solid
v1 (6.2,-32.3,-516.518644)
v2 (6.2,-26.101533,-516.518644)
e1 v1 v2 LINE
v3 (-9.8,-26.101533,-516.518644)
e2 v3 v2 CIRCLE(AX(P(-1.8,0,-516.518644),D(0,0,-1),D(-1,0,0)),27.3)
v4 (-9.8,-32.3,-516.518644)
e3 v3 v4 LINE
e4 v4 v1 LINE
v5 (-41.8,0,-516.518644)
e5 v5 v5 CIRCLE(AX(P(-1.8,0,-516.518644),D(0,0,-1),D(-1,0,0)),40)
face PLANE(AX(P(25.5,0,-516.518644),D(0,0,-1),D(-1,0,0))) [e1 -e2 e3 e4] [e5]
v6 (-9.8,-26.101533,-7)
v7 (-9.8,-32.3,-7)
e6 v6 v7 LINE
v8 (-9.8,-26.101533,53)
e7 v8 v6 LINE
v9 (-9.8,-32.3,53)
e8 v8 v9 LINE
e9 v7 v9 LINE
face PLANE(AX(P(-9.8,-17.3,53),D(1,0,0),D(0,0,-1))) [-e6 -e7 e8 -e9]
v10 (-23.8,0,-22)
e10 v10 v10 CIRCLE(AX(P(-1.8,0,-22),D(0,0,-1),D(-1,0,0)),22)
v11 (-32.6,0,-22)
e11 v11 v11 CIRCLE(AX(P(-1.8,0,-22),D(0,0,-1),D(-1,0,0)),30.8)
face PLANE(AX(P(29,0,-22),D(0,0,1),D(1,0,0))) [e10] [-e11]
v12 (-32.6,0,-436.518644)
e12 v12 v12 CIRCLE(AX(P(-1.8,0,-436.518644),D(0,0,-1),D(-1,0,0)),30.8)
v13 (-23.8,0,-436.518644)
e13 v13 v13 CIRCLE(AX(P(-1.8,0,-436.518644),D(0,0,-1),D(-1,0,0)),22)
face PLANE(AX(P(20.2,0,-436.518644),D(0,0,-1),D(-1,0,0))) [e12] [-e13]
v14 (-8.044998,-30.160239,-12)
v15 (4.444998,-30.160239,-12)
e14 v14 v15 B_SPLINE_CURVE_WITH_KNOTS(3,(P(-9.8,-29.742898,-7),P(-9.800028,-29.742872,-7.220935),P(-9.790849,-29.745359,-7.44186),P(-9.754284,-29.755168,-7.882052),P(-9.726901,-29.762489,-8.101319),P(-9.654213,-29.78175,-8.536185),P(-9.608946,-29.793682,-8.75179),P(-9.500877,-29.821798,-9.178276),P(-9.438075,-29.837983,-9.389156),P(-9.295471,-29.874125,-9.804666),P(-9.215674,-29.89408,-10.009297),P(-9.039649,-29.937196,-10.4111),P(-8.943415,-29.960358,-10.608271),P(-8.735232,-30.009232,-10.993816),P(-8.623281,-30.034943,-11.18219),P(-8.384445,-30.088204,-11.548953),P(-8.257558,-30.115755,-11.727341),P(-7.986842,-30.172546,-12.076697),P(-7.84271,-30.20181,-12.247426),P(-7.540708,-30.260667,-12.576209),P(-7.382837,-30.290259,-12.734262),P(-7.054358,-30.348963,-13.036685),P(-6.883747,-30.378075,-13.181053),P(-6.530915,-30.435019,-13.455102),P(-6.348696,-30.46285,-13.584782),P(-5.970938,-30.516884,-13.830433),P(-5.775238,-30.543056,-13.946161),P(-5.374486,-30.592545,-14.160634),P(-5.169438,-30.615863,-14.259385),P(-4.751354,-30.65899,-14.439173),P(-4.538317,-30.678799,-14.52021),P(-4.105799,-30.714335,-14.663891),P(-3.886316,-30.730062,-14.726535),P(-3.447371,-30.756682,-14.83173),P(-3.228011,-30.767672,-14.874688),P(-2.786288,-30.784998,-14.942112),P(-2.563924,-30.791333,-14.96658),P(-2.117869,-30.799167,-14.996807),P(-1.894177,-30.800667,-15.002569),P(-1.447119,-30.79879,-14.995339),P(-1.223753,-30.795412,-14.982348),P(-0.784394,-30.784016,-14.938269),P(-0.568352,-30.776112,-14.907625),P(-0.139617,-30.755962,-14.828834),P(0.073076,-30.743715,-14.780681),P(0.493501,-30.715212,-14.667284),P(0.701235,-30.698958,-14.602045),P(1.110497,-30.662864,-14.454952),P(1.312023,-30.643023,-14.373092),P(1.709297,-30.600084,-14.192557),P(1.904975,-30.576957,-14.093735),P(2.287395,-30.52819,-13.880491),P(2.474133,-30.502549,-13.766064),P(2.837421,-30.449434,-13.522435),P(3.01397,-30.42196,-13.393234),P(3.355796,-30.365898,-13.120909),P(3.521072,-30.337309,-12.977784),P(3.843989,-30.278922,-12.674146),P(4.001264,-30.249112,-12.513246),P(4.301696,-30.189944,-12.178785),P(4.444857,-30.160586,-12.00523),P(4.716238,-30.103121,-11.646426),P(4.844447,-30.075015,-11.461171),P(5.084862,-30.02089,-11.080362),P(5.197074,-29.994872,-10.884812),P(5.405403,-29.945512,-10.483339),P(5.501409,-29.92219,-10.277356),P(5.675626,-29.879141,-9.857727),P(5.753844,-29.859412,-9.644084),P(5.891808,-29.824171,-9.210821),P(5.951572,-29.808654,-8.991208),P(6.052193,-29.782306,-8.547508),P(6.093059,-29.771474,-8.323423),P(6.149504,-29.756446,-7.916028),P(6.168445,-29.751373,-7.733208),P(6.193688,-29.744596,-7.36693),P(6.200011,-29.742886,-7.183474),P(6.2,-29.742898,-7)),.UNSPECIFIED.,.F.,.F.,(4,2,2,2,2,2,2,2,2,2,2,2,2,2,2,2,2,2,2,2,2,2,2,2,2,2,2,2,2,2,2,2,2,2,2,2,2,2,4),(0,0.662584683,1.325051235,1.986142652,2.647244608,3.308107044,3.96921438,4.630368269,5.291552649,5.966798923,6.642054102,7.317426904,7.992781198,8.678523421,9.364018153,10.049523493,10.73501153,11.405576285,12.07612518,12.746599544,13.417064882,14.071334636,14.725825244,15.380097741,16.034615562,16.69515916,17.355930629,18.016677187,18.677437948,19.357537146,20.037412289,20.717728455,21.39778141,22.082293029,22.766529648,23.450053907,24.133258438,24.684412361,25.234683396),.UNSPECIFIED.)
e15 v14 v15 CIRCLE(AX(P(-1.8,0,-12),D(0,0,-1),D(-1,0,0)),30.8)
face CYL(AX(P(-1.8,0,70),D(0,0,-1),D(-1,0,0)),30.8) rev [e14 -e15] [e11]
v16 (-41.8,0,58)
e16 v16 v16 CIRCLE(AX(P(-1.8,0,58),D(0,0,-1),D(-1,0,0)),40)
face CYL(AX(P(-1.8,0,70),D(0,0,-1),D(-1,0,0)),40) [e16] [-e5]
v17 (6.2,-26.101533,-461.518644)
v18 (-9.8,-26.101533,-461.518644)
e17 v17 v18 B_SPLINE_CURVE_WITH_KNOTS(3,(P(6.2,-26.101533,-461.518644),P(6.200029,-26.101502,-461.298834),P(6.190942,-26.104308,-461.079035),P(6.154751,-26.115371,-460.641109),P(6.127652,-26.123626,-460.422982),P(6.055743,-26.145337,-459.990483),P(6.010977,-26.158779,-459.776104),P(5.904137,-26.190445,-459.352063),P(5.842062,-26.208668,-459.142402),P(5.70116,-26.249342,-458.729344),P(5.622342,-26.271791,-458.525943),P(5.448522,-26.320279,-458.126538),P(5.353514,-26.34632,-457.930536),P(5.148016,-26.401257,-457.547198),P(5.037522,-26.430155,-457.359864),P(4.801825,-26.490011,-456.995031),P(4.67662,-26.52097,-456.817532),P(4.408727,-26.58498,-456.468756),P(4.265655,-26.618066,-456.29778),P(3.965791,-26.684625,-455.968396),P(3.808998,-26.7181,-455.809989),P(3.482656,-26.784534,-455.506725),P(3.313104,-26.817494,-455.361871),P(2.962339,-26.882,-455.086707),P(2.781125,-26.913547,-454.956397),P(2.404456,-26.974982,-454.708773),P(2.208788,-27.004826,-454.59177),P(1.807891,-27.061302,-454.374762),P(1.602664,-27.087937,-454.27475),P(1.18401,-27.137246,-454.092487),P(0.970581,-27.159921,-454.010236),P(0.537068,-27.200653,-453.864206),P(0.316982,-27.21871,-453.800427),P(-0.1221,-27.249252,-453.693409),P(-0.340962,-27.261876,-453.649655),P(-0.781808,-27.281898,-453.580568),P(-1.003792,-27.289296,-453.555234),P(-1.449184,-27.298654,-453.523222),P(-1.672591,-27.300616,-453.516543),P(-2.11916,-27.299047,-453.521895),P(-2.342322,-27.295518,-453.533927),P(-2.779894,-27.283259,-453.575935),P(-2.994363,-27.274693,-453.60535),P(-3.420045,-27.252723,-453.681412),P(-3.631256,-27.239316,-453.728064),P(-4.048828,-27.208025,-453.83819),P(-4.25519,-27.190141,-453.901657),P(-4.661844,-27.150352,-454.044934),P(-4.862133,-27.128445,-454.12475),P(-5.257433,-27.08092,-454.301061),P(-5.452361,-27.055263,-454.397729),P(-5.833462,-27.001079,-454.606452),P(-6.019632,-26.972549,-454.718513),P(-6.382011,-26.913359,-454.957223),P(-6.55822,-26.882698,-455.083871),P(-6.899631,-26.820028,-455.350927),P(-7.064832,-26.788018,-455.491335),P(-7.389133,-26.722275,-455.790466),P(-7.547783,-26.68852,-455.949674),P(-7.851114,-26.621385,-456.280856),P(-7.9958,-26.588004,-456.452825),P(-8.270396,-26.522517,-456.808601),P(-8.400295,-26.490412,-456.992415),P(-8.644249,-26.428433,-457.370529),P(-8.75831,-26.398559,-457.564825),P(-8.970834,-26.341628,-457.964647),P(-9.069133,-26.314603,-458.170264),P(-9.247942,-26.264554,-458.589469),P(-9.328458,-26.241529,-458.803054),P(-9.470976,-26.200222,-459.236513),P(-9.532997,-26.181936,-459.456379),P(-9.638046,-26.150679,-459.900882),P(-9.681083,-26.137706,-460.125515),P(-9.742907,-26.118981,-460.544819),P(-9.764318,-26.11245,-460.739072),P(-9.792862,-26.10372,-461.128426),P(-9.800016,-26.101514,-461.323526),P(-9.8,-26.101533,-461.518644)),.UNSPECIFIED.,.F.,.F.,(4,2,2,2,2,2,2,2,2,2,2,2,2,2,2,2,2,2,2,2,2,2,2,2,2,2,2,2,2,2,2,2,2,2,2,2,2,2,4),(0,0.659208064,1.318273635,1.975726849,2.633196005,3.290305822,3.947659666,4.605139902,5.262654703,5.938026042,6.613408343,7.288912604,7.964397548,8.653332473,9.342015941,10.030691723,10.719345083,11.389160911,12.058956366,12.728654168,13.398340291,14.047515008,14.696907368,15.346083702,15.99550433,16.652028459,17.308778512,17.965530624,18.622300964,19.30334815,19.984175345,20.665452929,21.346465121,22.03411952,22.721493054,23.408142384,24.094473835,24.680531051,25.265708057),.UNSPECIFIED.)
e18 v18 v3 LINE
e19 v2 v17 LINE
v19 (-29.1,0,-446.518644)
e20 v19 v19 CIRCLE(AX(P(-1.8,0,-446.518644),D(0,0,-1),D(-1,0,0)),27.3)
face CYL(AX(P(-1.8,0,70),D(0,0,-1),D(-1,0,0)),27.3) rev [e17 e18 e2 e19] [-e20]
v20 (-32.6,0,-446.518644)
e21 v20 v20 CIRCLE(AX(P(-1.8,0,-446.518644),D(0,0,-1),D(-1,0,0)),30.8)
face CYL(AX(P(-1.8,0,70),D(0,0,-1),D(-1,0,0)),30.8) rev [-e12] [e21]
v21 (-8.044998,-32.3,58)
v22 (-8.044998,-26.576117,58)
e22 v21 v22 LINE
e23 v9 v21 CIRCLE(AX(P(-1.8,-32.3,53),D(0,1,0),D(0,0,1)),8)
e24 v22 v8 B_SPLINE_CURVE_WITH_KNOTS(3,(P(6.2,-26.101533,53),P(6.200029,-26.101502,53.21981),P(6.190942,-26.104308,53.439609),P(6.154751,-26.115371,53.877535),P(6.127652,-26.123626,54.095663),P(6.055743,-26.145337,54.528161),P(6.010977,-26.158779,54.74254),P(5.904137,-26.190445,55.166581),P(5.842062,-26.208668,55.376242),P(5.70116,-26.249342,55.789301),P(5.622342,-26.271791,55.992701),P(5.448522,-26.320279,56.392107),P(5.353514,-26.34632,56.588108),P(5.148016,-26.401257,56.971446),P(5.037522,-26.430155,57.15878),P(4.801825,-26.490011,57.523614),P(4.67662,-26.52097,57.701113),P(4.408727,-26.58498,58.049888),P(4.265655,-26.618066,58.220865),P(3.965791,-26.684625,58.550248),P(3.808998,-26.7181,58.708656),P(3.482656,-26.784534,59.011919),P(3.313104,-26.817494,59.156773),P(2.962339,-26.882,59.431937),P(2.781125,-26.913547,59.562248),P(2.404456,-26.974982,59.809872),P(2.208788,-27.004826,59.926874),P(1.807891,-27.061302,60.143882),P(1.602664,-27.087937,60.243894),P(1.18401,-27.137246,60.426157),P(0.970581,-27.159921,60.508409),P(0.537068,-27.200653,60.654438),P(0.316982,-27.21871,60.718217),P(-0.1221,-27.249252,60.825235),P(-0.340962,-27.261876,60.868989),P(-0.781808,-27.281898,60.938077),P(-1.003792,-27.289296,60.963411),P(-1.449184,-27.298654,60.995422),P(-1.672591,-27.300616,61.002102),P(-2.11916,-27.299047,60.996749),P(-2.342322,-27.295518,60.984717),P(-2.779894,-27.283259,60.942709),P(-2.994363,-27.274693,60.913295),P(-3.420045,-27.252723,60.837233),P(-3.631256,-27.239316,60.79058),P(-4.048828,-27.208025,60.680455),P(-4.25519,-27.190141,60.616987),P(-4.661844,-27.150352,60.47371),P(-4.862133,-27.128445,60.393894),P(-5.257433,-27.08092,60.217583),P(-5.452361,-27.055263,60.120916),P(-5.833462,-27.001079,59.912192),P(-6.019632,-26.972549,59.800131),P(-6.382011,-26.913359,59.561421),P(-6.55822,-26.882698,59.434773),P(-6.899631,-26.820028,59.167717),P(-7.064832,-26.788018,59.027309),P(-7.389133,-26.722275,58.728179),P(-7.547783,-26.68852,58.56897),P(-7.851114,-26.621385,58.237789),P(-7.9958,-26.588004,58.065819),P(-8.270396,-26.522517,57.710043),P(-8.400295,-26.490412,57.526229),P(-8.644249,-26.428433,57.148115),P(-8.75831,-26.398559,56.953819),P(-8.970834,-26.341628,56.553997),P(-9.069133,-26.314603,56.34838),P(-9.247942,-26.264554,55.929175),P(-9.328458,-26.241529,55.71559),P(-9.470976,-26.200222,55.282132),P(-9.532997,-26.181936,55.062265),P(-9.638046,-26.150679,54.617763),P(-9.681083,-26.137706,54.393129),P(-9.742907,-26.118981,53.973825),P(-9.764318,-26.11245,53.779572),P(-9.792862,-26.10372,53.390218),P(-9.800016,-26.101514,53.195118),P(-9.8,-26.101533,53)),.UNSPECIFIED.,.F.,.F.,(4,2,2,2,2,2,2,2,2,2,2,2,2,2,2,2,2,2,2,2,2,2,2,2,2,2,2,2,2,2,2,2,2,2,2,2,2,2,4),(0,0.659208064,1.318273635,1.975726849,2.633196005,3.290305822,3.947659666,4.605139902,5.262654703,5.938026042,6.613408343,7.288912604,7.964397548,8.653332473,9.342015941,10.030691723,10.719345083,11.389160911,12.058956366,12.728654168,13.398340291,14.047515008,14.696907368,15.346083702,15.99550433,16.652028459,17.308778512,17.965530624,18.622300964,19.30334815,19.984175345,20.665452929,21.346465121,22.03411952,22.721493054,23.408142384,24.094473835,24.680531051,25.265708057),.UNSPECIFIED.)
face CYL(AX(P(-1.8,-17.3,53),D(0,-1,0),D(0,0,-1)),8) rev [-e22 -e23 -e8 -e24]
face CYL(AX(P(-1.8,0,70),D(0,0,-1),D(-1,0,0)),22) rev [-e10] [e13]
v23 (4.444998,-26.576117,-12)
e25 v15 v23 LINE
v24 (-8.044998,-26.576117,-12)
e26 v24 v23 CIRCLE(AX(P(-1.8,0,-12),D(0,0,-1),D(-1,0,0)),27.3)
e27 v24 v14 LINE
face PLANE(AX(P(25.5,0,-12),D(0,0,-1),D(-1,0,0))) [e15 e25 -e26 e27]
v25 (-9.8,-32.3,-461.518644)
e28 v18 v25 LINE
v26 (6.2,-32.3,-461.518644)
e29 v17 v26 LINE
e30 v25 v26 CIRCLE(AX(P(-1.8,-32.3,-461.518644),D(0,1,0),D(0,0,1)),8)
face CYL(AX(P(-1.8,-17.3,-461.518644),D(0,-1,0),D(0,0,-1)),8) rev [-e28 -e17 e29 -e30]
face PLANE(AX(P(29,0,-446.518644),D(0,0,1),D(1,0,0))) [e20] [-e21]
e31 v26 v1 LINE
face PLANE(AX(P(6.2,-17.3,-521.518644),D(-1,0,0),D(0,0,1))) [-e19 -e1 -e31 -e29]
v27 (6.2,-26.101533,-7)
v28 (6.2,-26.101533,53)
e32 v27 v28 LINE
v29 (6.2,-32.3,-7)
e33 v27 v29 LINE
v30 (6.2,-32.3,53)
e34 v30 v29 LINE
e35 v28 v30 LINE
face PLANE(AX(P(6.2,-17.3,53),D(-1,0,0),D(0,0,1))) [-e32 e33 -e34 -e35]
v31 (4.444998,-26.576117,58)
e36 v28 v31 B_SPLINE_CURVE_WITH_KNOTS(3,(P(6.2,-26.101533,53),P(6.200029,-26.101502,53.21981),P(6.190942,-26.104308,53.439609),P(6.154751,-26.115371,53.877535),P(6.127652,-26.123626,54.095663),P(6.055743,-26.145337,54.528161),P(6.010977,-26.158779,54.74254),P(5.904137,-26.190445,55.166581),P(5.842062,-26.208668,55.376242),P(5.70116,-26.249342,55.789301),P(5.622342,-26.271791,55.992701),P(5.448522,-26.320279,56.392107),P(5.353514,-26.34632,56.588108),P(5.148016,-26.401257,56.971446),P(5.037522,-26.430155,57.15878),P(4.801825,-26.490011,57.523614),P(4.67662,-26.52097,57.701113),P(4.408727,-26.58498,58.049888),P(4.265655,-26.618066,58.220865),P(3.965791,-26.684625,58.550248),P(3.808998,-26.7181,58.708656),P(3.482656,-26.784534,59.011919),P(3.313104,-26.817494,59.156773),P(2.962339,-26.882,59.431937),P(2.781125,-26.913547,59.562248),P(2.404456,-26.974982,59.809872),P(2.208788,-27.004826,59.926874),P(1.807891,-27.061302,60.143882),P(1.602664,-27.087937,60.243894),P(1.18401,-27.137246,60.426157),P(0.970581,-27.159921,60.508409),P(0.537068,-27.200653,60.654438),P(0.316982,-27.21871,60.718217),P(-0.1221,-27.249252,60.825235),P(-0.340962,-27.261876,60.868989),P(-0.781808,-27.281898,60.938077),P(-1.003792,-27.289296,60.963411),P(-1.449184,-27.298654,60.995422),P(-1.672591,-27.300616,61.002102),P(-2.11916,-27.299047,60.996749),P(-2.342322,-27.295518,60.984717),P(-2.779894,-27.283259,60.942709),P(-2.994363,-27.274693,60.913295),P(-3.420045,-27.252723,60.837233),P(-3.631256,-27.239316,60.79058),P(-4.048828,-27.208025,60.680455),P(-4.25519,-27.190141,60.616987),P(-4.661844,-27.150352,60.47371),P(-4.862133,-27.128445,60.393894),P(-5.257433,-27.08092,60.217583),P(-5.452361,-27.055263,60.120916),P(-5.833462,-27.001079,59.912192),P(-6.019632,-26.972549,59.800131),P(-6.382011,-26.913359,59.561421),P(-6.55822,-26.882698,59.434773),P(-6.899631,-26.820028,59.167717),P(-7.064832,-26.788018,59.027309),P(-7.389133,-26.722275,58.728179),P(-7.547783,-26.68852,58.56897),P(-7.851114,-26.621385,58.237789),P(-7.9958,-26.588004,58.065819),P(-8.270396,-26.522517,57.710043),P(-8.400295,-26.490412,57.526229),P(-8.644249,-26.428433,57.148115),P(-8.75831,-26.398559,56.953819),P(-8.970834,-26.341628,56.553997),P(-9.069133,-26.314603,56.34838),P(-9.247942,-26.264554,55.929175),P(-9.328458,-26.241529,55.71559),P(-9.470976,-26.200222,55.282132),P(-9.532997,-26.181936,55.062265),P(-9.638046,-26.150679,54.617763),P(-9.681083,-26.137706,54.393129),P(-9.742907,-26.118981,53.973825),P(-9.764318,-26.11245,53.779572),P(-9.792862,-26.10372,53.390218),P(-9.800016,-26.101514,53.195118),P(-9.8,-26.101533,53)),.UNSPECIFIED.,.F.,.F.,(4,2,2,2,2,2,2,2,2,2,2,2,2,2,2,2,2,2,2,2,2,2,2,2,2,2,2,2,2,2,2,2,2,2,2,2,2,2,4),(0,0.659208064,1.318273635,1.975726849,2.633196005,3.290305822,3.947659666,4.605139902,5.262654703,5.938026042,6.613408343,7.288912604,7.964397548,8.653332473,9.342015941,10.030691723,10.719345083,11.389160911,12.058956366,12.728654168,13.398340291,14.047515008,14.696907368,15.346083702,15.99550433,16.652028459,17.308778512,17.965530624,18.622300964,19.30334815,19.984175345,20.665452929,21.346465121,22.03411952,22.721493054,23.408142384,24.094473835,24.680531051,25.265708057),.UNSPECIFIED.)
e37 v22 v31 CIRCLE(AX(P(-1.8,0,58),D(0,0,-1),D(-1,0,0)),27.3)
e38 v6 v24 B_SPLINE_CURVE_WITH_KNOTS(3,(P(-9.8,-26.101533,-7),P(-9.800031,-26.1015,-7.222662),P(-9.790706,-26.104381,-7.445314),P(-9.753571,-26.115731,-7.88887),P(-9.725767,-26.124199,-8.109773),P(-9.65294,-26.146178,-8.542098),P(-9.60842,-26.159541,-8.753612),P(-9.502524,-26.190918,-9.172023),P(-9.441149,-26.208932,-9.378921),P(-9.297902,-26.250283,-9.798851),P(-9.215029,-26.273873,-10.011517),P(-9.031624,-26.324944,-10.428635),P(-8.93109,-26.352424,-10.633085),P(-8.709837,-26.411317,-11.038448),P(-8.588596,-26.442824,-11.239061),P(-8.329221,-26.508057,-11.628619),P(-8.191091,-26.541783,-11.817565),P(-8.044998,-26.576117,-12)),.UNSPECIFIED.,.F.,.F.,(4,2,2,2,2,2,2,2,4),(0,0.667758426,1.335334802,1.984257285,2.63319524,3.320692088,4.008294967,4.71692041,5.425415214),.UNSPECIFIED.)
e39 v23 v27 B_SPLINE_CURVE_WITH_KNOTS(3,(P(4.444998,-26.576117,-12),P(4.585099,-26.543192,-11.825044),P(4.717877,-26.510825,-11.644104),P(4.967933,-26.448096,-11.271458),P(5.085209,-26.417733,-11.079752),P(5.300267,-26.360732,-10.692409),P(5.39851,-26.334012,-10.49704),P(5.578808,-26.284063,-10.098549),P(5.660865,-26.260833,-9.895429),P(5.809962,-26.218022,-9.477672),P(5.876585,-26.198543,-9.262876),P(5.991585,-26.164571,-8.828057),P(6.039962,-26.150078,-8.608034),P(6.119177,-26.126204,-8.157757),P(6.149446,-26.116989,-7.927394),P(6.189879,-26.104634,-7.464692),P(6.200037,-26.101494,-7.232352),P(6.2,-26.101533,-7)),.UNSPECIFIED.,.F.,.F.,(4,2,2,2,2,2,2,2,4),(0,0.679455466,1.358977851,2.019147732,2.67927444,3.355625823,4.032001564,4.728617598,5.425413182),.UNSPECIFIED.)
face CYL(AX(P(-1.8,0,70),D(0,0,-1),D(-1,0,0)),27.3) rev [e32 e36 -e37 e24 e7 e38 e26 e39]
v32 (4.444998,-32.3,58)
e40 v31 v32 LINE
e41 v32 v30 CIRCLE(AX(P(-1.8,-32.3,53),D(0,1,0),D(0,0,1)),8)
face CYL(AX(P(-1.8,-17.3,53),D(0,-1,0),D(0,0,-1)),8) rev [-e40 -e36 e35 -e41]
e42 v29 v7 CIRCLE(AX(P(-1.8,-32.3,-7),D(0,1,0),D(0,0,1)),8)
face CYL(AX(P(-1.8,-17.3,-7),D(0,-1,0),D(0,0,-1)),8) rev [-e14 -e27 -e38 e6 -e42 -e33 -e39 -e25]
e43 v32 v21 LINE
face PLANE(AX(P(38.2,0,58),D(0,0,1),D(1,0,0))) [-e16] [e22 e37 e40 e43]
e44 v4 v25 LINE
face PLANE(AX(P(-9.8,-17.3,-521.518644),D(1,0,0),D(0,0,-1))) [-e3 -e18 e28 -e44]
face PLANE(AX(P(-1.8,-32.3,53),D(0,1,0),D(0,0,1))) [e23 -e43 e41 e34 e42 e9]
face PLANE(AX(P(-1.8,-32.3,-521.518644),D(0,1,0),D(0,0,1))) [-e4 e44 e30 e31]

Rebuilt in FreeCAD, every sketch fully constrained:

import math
import FreeCAD as App
import Part
import Sketcher

V = App.Vector

doc = App.newDocument("Part")
body = doc.addObject("PartDesign::Body", "Body")

# Sketch on XZ plane
sketch1 = body.newObject("Sketcher::SketchObject", "Sketch")
sketch1.AttachmentSupport = (doc.getObject("XZ_Plane"), [""])
sketch1.MapMode = "FlatFace"
sketch1.addGeometry([
    Part.LineSegment(V(38.2, -516.5, 0), V(38.2, 58, 0)),  # 0
    Part.LineSegment(V(38.2, 58, 0), V(25.5, 58, 0)),  # 1
    Part.LineSegment(V(25.5, 58, 0), V(25.5, -12, 0)),  # 2
    Part.LineSegment(V(25.5, -12, 0), V(29, -12, 0)),  # 3
    Part.LineSegment(V(29, -12, 0), V(29, -22, 0)),  # 4
    Part.LineSegment(V(29, -22, 0), V(20.2, -22, 0)),  # 5
    Part.LineSegment(V(20.2, -22, 0), V(20.2, -436.5, 0)),  # 6
    Part.LineSegment(V(20.2, -436.5, 0), V(29, -436.5, 0)),  # 7
    Part.LineSegment(V(29, -436.5, 0), V(29, -446.5, 0)),  # 8
    Part.LineSegment(V(29, -446.5, 0), V(25.5, -446.5, 0)),  # 9
    Part.LineSegment(V(25.5, -446.5, 0), V(25.5, -516.5, 0)),  # 10
    Part.LineSegment(V(25.5, -516.5, 0), V(38.2, -516.5, 0)),  # 11
], False)
sketch1.addGeometry(Part.LineSegment(V(-1.8, 58, 0), V(-1.8, -516.5, 0)), True)  # axis
sketch1.addConstraint([
    Sketcher.Constraint("Coincident", 0, 2, 1, 1),
    Sketcher.Constraint("Coincident", 1, 2, 2, 1),
    Sketcher.Constraint("Coincident", 2, 2, 3, 1),
    Sketcher.Constraint("Coincident", 3, 2, 4, 1),
    Sketcher.Constraint("Coincident", 4, 2, 5, 1),
    Sketcher.Constraint("Coincident", 5, 2, 6, 1),
    Sketcher.Constraint("Coincident", 6, 2, 7, 1),
    Sketcher.Constraint("Coincident", 7, 2, 8, 1),
    Sketcher.Constraint("Coincident", 8, 2, 9, 1),
    Sketcher.Constraint("Coincident", 9, 2, 10, 1),
    Sketcher.Constraint("Coincident", 10, 2, 11, 1),
    Sketcher.Constraint("Coincident", 11, 2, 0, 1),
    Sketcher.Constraint("Vertical", 0),
    Sketcher.Constraint("Horizontal", 1),
    Sketcher.Constraint("Vertical", 2),
    Sketcher.Constraint("Horizontal", 3),
    Sketcher.Constraint("Vertical", 4),
    Sketcher.Constraint("Horizontal", 5),
    Sketcher.Constraint("Vertical", 6),
    Sketcher.Constraint("Horizontal", 7),
    Sketcher.Constraint("Vertical", 8),
    Sketcher.Constraint("Horizontal", 9),
    Sketcher.Constraint("Vertical", 10),
    Sketcher.Constraint("Horizontal", 11),
    Sketcher.Constraint("Vertical", 12),
    Sketcher.Constraint("Horizontal", 1, 2, 12, 1),
    Sketcher.Constraint("Horizontal", 11, 2, 12, 2),
    Sketcher.Constraint("Vertical", 4, 2, 7, 2),
    Sketcher.Constraint("Vertical", 2, 2, 9, 2),
    Sketcher.Constraint("Equal", 4, 8),
    Sketcher.Constraint("Equal", 2, 10),
    Sketcher.Constraint("DistanceY", 2, 2, 2, 1, 70.0),
    Sketcher.Constraint("DistanceY", 4, 2, 4, 1, 10.0),
    Sketcher.Constraint("DistanceX", 1, 2, 1, 1, 12.7),
    Sketcher.Constraint("DistanceX", 3, 1, 3, 2, 3.5),
    Sketcher.Constraint("DistanceX", 5, 2, 5, 1, 8.8),
    Sketcher.Constraint("DistanceY", -1, 1, 0, 2, 58.0),
    Sketcher.Constraint("DistanceX", -1, 1, 3, 2, 29.0),
    Sketcher.Constraint("DistanceX", 12, 1, 0, 2, 40.0),
    Sketcher.Constraint("DistanceY", 0, 1, 0, 2, 574.518644),
])
revolution = body.newObject("PartDesign::Revolution", "Revolution")
revolution.Profile = sketch1
revolution.ReferenceAxis = (sketch1, ["Axis0"])
revolution.Angle = 360

# Sketch on XZ plane
sketch2 = body.newObject("Sketcher::SketchObject", "Sketch001")
sketch2.AttachmentSupport = (doc.getObject("XZ_Plane"), [""])
sketch2.MapMode = "FlatFace"
sketch2.AttachmentOffset = App.Placement(V(0, 0, 27.3), App.Rotation())
sketch2.addGeometry([
    Part.LineSegment(V(6, -462, 0), V(6, -522, 0)),  # 0
    Part.ArcOfCircle(Part.Circle(V(-2, -522, 0), V(0, 0, 1), 8), math.radians(180), math.radians(360)),  # 1
    Part.LineSegment(V(-10, -522, 0), V(-10, -462, 0)),  # 2
    Part.ArcOfCircle(Part.Circle(V(-2, -462, 0), V(0, 0, 1), 8), math.radians(0), math.radians(180)),  # 3
    Part.LineSegment(V(-10, -7, 0), V(-10, 53, 0)),  # 4
    Part.ArcOfCircle(Part.Circle(V(-2, 53, 0), V(0, 0, 1), 8), math.radians(0), math.radians(180)),  # 5
    Part.LineSegment(V(6, 53, 0), V(6, -7, 0)),  # 6
    Part.ArcOfCircle(Part.Circle(V(-2, -7, 0), V(0, 0, 1), 8), math.radians(180), math.radians(360)),  # 7
], False)
sketch2.addConstraint([
    Sketcher.Constraint("Tangent", 0, 2, 1, 2),
    Sketcher.Constraint("Tangent", 1, 1, 2, 1),
    Sketcher.Constraint("Tangent", 2, 2, 3, 2),
    Sketcher.Constraint("Tangent", 3, 1, 0, 1),
    Sketcher.Constraint("Tangent", 4, 2, 5, 2),
    Sketcher.Constraint("Tangent", 5, 1, 6, 1),
    Sketcher.Constraint("Tangent", 6, 2, 7, 2),
    Sketcher.Constraint("Tangent", 7, 1, 4, 1),
    Sketcher.Constraint("Vertical", 0),
    Sketcher.Constraint("Vertical", 2),
    Sketcher.Constraint("Vertical", 4),
    Sketcher.Constraint("Vertical", 6),
    Sketcher.Constraint("Equal", 3, 5),
    Sketcher.Constraint("Vertical", 3, 3, 5, 3),
    Sketcher.Constraint("Equal", 2, 4),
    Sketcher.Constraint("Radius", 1, 8.0),
    Sketcher.Constraint("DistanceY", 0, 2, 0, 1, 60.0),
    Sketcher.Constraint("DistanceY", -1, 1, 5, 3, 53.0),
    Sketcher.Constraint("DistanceX", 1, 3, -1, 1, 1.8),
    Sketcher.Constraint("DistanceY", 1, 3, -1, 1, 521.518644),
])
pocket1 = body.newObject("PartDesign::Pocket", "Pocket")
pocket1.Profile = sketch2
pocket1.Type = "TwoLengths"
pocket1.Length = 10
pocket1.Length2 = 5

doc.recompute()
